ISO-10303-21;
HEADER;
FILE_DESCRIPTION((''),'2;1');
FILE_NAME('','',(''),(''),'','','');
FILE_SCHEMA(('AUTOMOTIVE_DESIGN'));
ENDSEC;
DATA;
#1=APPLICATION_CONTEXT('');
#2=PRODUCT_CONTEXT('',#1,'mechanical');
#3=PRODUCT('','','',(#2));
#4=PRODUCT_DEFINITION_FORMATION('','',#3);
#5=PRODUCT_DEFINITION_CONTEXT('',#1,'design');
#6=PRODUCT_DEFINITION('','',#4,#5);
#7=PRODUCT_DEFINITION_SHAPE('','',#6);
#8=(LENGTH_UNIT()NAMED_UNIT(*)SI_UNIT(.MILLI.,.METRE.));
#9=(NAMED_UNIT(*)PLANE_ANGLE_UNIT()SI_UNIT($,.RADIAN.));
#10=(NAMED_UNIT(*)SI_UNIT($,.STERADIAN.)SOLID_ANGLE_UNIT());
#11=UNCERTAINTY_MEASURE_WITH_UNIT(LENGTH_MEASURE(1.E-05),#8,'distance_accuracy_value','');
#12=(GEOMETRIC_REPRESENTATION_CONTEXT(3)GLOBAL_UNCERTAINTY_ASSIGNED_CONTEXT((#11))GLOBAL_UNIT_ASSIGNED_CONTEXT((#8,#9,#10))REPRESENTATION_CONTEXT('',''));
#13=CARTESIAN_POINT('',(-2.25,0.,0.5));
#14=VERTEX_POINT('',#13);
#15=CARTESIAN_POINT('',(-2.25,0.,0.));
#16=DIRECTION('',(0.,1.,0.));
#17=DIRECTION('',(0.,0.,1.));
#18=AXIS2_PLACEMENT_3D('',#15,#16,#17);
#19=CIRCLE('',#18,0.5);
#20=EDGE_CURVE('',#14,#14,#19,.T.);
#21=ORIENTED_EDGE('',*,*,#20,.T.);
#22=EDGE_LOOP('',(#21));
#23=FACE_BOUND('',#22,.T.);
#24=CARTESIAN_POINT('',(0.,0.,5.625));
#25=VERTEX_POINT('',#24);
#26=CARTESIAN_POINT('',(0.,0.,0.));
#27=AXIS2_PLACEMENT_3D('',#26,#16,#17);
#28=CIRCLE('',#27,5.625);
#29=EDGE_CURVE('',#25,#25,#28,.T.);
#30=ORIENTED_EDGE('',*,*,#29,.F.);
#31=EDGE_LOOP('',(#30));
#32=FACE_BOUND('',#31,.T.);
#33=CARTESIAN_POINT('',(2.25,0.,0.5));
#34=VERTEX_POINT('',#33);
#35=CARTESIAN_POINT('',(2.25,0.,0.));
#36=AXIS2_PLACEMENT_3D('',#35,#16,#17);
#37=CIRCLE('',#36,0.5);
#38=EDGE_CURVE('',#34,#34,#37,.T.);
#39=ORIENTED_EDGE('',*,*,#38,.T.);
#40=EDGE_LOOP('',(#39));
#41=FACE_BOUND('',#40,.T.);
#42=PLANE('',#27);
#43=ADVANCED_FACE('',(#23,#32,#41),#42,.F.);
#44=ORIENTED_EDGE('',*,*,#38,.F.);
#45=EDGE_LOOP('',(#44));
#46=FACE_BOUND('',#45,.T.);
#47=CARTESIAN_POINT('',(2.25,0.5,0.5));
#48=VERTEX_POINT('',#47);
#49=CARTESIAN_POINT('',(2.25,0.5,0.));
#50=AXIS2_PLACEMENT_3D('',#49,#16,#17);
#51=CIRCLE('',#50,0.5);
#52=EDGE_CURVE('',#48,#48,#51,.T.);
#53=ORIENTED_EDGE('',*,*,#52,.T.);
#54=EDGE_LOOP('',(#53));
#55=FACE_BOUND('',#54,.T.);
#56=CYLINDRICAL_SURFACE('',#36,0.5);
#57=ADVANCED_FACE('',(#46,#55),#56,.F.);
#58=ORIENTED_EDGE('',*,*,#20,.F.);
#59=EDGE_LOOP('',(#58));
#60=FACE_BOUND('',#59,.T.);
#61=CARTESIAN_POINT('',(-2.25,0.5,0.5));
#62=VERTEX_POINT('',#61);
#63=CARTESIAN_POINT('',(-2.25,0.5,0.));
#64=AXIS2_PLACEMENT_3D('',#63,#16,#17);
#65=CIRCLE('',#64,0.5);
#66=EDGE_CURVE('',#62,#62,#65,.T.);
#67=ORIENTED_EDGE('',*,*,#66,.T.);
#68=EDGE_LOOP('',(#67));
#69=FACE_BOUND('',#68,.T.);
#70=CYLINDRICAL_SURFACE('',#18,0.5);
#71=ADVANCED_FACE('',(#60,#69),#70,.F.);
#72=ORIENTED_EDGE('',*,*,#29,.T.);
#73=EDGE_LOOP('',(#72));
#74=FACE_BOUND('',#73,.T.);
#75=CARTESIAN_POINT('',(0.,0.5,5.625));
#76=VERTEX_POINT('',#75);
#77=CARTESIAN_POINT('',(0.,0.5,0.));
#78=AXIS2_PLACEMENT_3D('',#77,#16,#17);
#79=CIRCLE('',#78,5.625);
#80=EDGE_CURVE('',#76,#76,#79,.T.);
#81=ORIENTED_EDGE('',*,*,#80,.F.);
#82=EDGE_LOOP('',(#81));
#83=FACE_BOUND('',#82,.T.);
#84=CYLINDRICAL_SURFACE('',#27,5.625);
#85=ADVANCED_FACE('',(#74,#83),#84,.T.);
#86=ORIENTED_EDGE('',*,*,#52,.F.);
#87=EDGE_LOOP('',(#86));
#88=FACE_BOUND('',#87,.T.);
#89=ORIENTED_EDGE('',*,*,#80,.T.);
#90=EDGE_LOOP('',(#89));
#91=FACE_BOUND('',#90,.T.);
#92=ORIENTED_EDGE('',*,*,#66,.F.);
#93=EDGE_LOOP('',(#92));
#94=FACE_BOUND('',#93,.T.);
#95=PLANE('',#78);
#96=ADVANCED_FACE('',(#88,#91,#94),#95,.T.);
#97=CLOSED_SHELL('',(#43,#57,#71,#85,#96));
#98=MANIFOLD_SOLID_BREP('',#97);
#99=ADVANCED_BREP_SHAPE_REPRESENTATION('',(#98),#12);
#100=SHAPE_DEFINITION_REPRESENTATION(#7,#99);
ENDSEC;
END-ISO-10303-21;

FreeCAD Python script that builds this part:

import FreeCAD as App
import Part
import Sketcher
from FreeCAD import Vector

doc = App.newDocument("Part")
params = doc.addObject("Spreadsheet::Sheet", "Params")
for row, (alias, value) in enumerate([
    ("sketch1_diameter", "9 mm"),
    ("pad1_length", "0.5 mm"),
    ("sketch2_diameter", "1 mm"),
    ("sketch3_diameter", "9 mm"),
    ("sketch3_diameter2", "11.25 mm"),
    ("pad2_length", "0.5 mm"),
], start=1):
    params.set(f"A{row}", alias)
    params.set(f"B{row}", "=" + value)
    params.setAlias(f"B{row}", alias)

body = doc.addObject("PartDesign::Body", "Body")

# Sketch on XZ plane
sketch1 = doc.addObject("Sketcher::SketchObject", "Sketch")
body.addObject(sketch1)
sketch1.AttachmentSupport = (doc.XZ_Plane, [""])
sketch1.MapMode = "FlatFace"
sketch1.addGeometry(Part.Circle(Vector(0, 0, 0), Vector(0, 0, 1), 4.5), False)
sketch1.addConstraint([
    Sketcher.Constraint("Coincident", 0, 3, -1, 1),
    Sketcher.Constraint("Diameter", 0, 9.0),
])
sketch1.setExpression("Constraints[1]", "Params.sketch1_diameter")
pad1 = doc.addObject("PartDesign::Pad", "Pad")
body.addObject(pad1)
pad1.Profile = sketch1
pad1.setExpression("Length", "Params.pad1_length")
pad1.Reversed = True

# Sketch on XZ plane
sketch2 = doc.addObject("Sketcher::SketchObject", "Sketch001")
body.addObject(sketch2)
sketch2.AttachmentSupport = (doc.XZ_Plane, [""])
sketch2.MapMode = "FlatFace"
sketch2.AttachmentOffset = App.Placement(Vector(0, 0, -0.5), App.Rotation())
sketch2.addGeometry([
    Part.Circle(Vector(-2.2, 0, 0), Vector(0, 0, 1), 0.5),
    Part.Circle(Vector(2.2, 0, 0), Vector(0, 0, 1), 0.5),
], False)
sketch2.addConstraint([
    Sketcher.Constraint("Equal", 0, 1),
    Sketcher.Constraint("Symmetric", 0, 3, 1, 3, -1, 1),
    Sketcher.Constraint("PointOnObject", 0, 3, -1),
    Sketcher.Constraint("Diameter", 0, 1.0),
    Sketcher.Constraint("DistanceX", 0, 3, 1, 3, 4.5),
])
sketch2.setExpression("Constraints[3]", "Params.sketch2_diameter")
pocket1 = doc.addObject("PartDesign::Pocket", "Pocket")
body.addObject(pocket1)
pocket1.Profile = sketch2
pocket1.Type = "ThroughAll"
pocket1.Reversed = True

# Sketch on XZ plane
sketch3 = doc.addObject("Sketcher::SketchObject", "Sketch002")
body.addObject(sketch3)
sketch3.AttachmentSupport = (doc.XZ_Plane, [""])
sketch3.MapMode = "FlatFace"
sketch3.addGeometry([
    Part.Circle(Vector(0, 0, 0), Vector(0, 0, 1), 5.6),
    Part.Circle(Vector(0, 0, 0), Vector(0, 0, 1), 4.5),
], False)
sketch3.addConstraint([
    Sketcher.Constraint("Coincident", 0, 3, -1, 1),
    Sketcher.Constraint("Coincident", 1, 3, -1, 1),
    Sketcher.Constraint("Diameter", 1, 9.0),
    Sketcher.Constraint("Diameter", 0, 11.25),
])
sketch3.setExpression("Constraints[2]", "Params.sketch3_diameter")
sketch3.setExpression("Constraints[3]", "Params.sketch3_diameter2")
pad2 = doc.addObject("PartDesign::Pad", "Pad001")
body.addObject(pad2)
pad2.Profile = sketch3
pad2.setExpression("Length", "Params.pad2_length")
pad2.Reversed = True

doc.recompute()
